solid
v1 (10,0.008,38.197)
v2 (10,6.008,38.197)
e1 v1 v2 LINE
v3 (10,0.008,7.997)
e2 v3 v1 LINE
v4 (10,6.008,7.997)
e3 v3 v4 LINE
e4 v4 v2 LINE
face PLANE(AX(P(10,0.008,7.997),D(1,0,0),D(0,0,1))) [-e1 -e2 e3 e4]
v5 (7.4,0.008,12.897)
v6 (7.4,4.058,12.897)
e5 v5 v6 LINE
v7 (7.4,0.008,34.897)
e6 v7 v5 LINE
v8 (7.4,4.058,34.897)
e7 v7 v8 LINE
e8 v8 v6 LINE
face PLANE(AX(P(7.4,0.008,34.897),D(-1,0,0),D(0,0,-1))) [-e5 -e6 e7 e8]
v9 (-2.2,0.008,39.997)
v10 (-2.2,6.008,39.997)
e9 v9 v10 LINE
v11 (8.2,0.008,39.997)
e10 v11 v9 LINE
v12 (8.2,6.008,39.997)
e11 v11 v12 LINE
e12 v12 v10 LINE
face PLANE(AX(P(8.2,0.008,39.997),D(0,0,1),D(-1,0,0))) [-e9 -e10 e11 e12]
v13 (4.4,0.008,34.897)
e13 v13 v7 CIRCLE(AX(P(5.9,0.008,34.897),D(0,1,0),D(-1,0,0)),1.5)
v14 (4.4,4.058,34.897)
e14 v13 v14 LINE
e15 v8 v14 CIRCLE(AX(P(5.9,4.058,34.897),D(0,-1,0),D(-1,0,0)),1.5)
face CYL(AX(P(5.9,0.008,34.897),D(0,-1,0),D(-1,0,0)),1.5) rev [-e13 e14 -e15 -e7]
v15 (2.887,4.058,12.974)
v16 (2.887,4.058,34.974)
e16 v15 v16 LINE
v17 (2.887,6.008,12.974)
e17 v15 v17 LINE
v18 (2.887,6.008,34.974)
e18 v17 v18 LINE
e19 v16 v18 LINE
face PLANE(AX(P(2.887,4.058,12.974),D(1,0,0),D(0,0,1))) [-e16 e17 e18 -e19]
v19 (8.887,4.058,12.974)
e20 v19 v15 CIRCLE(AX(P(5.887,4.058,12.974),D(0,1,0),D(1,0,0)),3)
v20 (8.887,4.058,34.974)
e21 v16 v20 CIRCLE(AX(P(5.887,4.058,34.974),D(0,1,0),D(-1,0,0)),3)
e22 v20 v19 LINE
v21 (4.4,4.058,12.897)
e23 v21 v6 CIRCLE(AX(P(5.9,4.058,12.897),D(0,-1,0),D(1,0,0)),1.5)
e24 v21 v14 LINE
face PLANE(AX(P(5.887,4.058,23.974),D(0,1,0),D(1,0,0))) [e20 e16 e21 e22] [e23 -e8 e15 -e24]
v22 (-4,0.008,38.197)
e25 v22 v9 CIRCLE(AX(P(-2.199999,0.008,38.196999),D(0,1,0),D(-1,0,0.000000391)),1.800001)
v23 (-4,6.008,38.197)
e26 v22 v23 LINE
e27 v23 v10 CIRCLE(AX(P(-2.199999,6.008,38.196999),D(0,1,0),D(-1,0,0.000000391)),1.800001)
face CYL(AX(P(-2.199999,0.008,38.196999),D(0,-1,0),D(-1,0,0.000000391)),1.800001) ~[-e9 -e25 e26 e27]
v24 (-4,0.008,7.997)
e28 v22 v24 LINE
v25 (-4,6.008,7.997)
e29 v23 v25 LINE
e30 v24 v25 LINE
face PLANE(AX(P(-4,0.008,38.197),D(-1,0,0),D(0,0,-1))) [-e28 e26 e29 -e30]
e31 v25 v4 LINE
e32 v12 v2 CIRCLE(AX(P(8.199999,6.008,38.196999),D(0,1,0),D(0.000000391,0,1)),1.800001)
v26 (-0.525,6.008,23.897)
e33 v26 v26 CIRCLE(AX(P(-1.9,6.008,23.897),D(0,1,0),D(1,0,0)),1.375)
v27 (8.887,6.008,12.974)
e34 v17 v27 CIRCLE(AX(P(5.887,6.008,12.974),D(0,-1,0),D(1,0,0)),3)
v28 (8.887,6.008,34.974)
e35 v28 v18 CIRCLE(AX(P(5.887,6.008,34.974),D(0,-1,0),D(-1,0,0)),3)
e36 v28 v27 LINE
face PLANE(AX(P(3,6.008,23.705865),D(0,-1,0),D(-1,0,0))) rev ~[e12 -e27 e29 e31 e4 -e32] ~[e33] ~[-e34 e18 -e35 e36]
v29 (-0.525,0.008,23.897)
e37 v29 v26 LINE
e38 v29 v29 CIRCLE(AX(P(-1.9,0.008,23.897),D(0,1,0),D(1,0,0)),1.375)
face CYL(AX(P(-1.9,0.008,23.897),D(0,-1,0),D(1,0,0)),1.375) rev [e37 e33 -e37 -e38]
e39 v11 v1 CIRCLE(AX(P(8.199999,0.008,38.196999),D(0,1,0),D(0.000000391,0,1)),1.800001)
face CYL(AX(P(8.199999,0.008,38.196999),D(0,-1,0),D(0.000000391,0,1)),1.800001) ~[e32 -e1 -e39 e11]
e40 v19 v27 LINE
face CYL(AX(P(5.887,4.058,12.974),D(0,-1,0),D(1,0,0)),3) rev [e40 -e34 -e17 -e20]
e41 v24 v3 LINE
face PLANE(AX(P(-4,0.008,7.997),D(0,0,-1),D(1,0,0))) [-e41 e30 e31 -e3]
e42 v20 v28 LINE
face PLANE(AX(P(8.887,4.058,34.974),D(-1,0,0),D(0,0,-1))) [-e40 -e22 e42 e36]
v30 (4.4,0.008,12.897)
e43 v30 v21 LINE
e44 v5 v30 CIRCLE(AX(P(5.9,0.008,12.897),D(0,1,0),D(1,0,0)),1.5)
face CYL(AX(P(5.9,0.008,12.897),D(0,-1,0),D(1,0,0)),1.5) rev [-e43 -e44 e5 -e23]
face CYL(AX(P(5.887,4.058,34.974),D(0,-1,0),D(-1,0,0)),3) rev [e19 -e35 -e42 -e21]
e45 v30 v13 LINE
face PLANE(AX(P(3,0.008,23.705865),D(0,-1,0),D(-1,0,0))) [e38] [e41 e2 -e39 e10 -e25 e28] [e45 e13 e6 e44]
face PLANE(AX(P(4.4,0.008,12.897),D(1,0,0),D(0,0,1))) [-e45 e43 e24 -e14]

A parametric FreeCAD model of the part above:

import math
import FreeCAD as App
import Part
import Sketcher
Q = App.Units.Quantity

doc = App.newDocument("Part")
body = doc.addObject("PartDesign::Body", "Body")

# Sketch on XZ plane
sketch1 = doc.addObject("Sketcher::SketchObject", "Sketch")
body.addObject(sketch1)
sketch1.AttachmentSupport = (doc.XZ_Plane, [""])
sketch1.MapMode = "FlatFace"
sketch1.addGeometry([
    Part.ArcOfCircle(Part.Circle(App.Vector(5.9, 35, 0), App.Vector(0, 0, 1), 3), math.radians(0), math.radians(180)),
    Part.LineSegment(App.Vector(2.9, 35, 0), App.Vector(2.9, 13, 0)),
    Part.ArcOfCircle(Part.Circle(App.Vector(5.9, 13, 0), App.Vector(0, 0, 1), 3), math.radians(180), math.radians(360)),
    Part.LineSegment(App.Vector(8.9, 13, 0), App.Vector(8.9, 35, 0)),
], False)
sketch1.addConstraint([
    Sketcher.Constraint("Tangent", 0, 2, 1, 1),
    Sketcher.Constraint("Tangent", 1, 2, 2, 1),
    Sketcher.Constraint("Tangent", 2, 2, 3, 1),
    Sketcher.Constraint("Tangent", 3, 2, 0, 1),
    Sketcher.Constraint("Vertical", 1),
    Sketcher.Constraint("Vertical", 3),
    Sketcher.Constraint("Radius", 0, Q("3 mm")),
    Sketcher.Constraint("DistanceY", 1, 2, 1, 1, Q("22 mm")),
    Sketcher.Constraint("DistanceY", -1, 1, 0, 3, Q("35 mm")),
    Sketcher.Constraint("DistanceX", -1, 1, 0, 3, Q("5.9 mm")),
])
pad1 = doc.addObject("PartDesign::Pad", "Pad")
body.addObject(pad1)
pad1.Profile = sketch1
pad1.Length = 2
body2 = doc.addObject("PartDesign::Body", "Body001")
doc.recompute()

body.Placement = App.Placement(App.Vector(-0.013, -4.05, -39.977), App.Rotation(App.Vector(0, 0, 1), 0))
boolean = doc.addObject("PartDesign::Boolean", "Boolean")
body2.addObject(boolean)
boolean.Type = "Fuse"
boolean.addObjects([body])
body3 = doc.addObject("PartDesign::Body", "Body002")

# Sketch on XZ plane
sketch2 = doc.addObject("Sketcher::SketchObject", "Sketch001")
body3.addObject(sketch2)
sketch2.AttachmentSupport = (doc.getObject("XZ_Plane002"), [""])
sketch2.MapMode = "FlatFace"
sketch2.addGeometry([
    Part.LineSegment(App.Vector(10, 0, 0), App.Vector(-4, 0, 0)),  # 0
    Part.LineSegment(App.Vector(-4, 0, 0), App.Vector(-4, -30.2, 0)),  # 1
    Part.ArcOfCircle(Part.Circle(App.Vector(-2.199999, -30.199999, 0), App.Vector(0, 0, 1), 1.800001), math.radians(-179.999978), math.radians(-90.000022)),  # 2
    Part.LineSegment(App.Vector(-2.2, -32, 0), App.Vector(8.2, -32, 0)),  # 3
    Part.ArcOfCircle(Part.Circle(App.Vector(8.199999, -30.199999, 0), App.Vector(0, 0, 1), 1.800001), math.radians(-89.999978), math.radians(-0.000022)),  # 4
    Part.LineSegment(App.Vector(10, -30.2, 0), App.Vector(10, 0, 0)),  # 5
    Part.Circle(App.Vector(-1.9, -15.9, 0), App.Vector(0, 0, 1), 1.375),  # 6
    Part.LineSegment(App.Vector(4.4, -26.9, 0), App.Vector(4.4, -4.9, 0)),  # 7
    Part.ArcOfCircle(Part.Circle(App.Vector(5.9, -4.9, 0), App.Vector(0, 0, 1), 1.5), math.radians(0), math.radians(180)),  # 8
    Part.LineSegment(App.Vector(7.4, -4.9, 0), App.Vector(7.4, -26.9, 0)),  # 9
    Part.ArcOfCircle(Part.Circle(App.Vector(5.9, -26.9, 0), App.Vector(0, 0, 1), 1.5), math.radians(180), math.radians(360)),  # 10
], False)
sketch2.addConstraint([
    Sketcher.Constraint("Coincident", 0, 2, 1, 1),
    Sketcher.Constraint("Tangent", 1, 2, 2, 1),
    Sketcher.Constraint("Tangent", 2, 2, 3, 1),
    Sketcher.Constraint("Tangent", 3, 2, 4, 1),
    Sketcher.Constraint("Tangent", 4, 2, 5, 1),
    Sketcher.Constraint("Coincident", 5, 2, 0, 1),
    Sketcher.Constraint("Tangent", 7, 2, 8, 2),
    Sketcher.Constraint("Tangent", 8, 1, 9, 1),
    Sketcher.Constraint("Tangent", 9, 2, 10, 2),
    Sketcher.Constraint("Tangent", 10, 1, 7, 1),
    Sketcher.Constraint("Horizontal", 0),
    Sketcher.Constraint("Vertical", 1),
    Sketcher.Constraint("Horizontal", 3),
    Sketcher.Constraint("Vertical", 5),
    Sketcher.Constraint("Vertical", 7),
    Sketcher.Constraint("Vertical", 9),
    Sketcher.Constraint("Equal", 2, 4),
    Sketcher.Constraint("PointOnObject", 0, 2, -1),
    Sketcher.Constraint("Radius", 2, Q("1.800001 mm")),
    Sketcher.Constraint("Radius", 8, Q("1.5 mm")),
    Sketcher.Constraint("Diameter", 6, Q("2.75 mm")),
    Sketcher.Constraint("DistanceX", 0, 2, 0, 1, Q("14 mm")),
    Sketcher.Constraint("DistanceY", 7, 1, 7, 2, Q("22 mm")),
    Sketcher.Constraint("DistanceY", 1, 2, 1, 1, Q("30.2 mm")),
    Sketcher.Constraint("DistanceX", 0, 2, -1, 1, Q("4 mm")),
    Sketcher.Constraint("DistanceY", 6, 3, 8, 3, Q("11 mm")),
    Sketcher.Constraint("DistanceX", 6, 3, -1, 1, Q("1.9 mm")),
    Sketcher.Constraint("DistanceY", 6, 3, -1, 1, Q("15.9 mm")),
    Sketcher.Constraint("DistanceX", -1, 1, 8, 3, Q("5.9 mm")),
])
pad2 = doc.addObject("PartDesign::Pad", "Pad001")
body3.addObject(pad2)
pad2.Profile = sketch2
pad2.Length = 6
doc.recompute()

boolean2 = doc.addObject("PartDesign::Boolean", "Boolean001")
body3.addObject(boolean2)
boolean2.Type = "Cut"
boolean2.addObjects([body2])
body4 = doc.addObject("PartDesign::Body", "Body003")
doc.recompute()

body3.Placement = App.Placement(App.Vector(0, 0.008, 7.997), App.Rotation(App.Vector(1, 0, 0), 180))
boolean3 = doc.addObject("PartDesign::Boolean", "Boolean002")
body4.addObject(boolean3)
boolean3.Type = "Fuse"
boolean3.addObjects([body3])

doc.recompute()
